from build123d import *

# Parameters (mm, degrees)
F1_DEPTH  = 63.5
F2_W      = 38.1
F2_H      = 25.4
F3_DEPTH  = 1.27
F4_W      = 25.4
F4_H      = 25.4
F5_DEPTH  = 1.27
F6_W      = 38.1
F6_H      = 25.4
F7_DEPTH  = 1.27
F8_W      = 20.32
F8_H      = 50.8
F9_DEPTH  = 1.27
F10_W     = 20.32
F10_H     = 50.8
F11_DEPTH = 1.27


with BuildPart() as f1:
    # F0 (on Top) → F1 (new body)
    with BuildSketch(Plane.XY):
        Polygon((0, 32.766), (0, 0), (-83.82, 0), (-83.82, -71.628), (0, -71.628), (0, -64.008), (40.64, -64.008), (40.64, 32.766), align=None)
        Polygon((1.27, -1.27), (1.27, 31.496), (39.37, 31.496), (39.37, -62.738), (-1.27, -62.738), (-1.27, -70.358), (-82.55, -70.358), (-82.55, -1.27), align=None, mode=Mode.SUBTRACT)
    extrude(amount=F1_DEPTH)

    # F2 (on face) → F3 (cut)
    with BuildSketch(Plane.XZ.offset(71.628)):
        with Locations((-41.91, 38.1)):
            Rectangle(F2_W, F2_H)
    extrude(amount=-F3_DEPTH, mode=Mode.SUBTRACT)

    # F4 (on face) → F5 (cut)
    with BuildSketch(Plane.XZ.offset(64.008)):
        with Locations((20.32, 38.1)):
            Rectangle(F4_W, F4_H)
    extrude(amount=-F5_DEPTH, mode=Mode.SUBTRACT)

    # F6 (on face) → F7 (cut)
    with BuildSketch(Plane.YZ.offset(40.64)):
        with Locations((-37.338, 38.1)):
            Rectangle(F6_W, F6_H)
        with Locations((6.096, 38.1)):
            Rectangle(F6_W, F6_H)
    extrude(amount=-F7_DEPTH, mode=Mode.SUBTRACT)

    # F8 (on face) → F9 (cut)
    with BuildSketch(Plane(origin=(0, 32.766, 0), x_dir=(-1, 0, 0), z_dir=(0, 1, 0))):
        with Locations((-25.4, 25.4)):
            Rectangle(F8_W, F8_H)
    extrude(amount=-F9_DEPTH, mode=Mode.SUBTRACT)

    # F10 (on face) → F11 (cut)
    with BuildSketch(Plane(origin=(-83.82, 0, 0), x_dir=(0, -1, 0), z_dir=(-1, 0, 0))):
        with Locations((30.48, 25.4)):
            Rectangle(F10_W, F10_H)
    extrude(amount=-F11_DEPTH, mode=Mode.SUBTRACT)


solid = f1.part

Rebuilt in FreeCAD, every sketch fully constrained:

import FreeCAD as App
import Part
import Sketcher

V = App.Vector
Q = App.Units.Quantity


def add_polygon(sketch, points):
    """Adds a closed chain of lines whose ends are joined by coincident constraints."""
    first, n = sketch.GeometryCount, len(points)
    for a, b in zip(points, points[1:] + points[:1]):
        sketch.addGeometry(Part.LineSegment(App.Vector(*a, 0), App.Vector(*b, 0)), False)
    for i in range(n):
        sketch.addConstraint(Sketcher.Constraint("Coincident", first + i, 2, first + (i + 1) % n, 1))

doc = App.newDocument("Part")
body = doc.addObject("PartDesign::Body", "Body")

sketch1 = body.newObject("Sketcher::SketchObject", "Sketch")
sketch1.AttachmentSupport = (doc.getObject("XY_Plane"), [""])
sketch1.MapMode = "FlatFace"
add_polygon(sketch1, [(0, 32.766), (0, 0), (-83.82, 0), (-83.82, -71.628), (0, -71.628), (0, -64.008), (40.64, -64.008), (40.64, 32.766)])
add_polygon(sketch1, [(-82.55, -1.27), (1.27, -1.27), (1.27, 31.496), (39.37, 31.496), (39.37, -62.738), (-1.27, -62.738), (-1.27, -70.358), (-82.55, -70.358)])
sketch1.addConstraint([
    Sketcher.Constraint("Vertical", 0),
    Sketcher.Constraint("Horizontal", 1),
    Sketcher.Constraint("Vertical", 2),
    Sketcher.Constraint("Horizontal", 3),
    Sketcher.Constraint("Vertical", 4),
    Sketcher.Constraint("Horizontal", 5),
    Sketcher.Constraint("Vertical", 6),
    Sketcher.Constraint("Horizontal", 7),
    Sketcher.Constraint("Horizontal", 8),
    Sketcher.Constraint("Vertical", 9),
    Sketcher.Constraint("Horizontal", 10),
    Sketcher.Constraint("Vertical", 11),
    Sketcher.Constraint("Horizontal", 12),
    Sketcher.Constraint("Vertical", 13),
    Sketcher.Constraint("Horizontal", 14),
    Sketcher.Constraint("Vertical", 15),
    Sketcher.Constraint("Coincident", 0, 2, -1, 1),
    Sketcher.Constraint("PointOnObject", 3, 2, -2),
    Sketcher.Constraint("Equal", 3, 8),
    Sketcher.Constraint("Equal", 7, 12),
    Sketcher.Constraint("Equal", 0, 9),
    Sketcher.Constraint("Equal", 4, 13),
    Sketcher.Constraint("DistanceX", 1, 2, 1, 1, Q("3.3 in")),
    Sketcher.Constraint("DistanceX", 5, 1, 5, 2, Q("1.6 in")),
    Sketcher.Constraint("DistanceX", 10, 1, 10, 2, Q("1.5 in")),
    Sketcher.Constraint("DistanceY", 4, 1, 4, 2, Q("0.3 in")),
    Sketcher.Constraint("DistanceY", 0, 2, 0, 1, Q("1.29 in")),
    Sketcher.Constraint("DistanceY", 2, 2, 2, 1, Q("2.82 in")),
    Sketcher.Constraint("DistanceY", 11, 2, 11, 1, Q("3.71 in")),
    Sketcher.Constraint("DistanceX", -1, 1, 8, 2, Q("0.05 in")),
    Sketcher.Constraint("DistanceY", 8, 2, -1, 1, Q("0.05 in")),
])
pad1 = body.newObject("PartDesign::Pad", "Pad")
pad1.Profile = sketch1
pad1.Length = Q("2.5 in")

sketch2 = body.newObject("Sketcher::SketchObject", "Sketch001")
sketch2.AttachmentSupport = (doc.getObject("XZ_Plane"), [""])
sketch2.MapMode = "FlatFace"
sketch2.AttachmentOffset = App.Placement(V(0, 0, 2.82 * 25.4), App.Rotation())
add_polygon(sketch2, [(-60.96, 50.8), (-60.96, 25.4), (-22.86, 25.4), (-22.86, 50.8)])
sketch2.addConstraint([
    Sketcher.Constraint("Vertical", 0),
    Sketcher.Constraint("Horizontal", 1),
    Sketcher.Constraint("Vertical", 2),
    Sketcher.Constraint("Horizontal", 3),
    Sketcher.Constraint("DistanceY", 0, 2, 0, 1, Q("1 in")),
    Sketcher.Constraint("DistanceX", 1, 1, 1, 2, Q("1.5 in")),
    Sketcher.Constraint("DistanceY", -1, 1, 0, 2, Q("1 in")),
    Sketcher.Constraint("DistanceX", 0, 2, -1, 1, Q("2.4 in")),
])
pocket1 = body.newObject("PartDesign::Pocket", "Pocket")
pocket1.Profile = sketch2
pocket1.Length = Q("0.05 in")

sketch3 = body.newObject("Sketcher::SketchObject", "Sketch002")
sketch3.AttachmentSupport = (doc.getObject("XZ_Plane"), [""])
sketch3.MapMode = "FlatFace"
sketch3.AttachmentOffset = App.Placement(V(0, 0, 2.52 * 25.4), App.Rotation())
add_polygon(sketch3, [(7.62, 50.8), (7.62, 25.4), (33.02, 25.4), (33.02, 50.8)])
sketch3.addConstraint([
    Sketcher.Constraint("Vertical", 0),
    Sketcher.Constraint("Horizontal", 1),
    Sketcher.Constraint("Vertical", 2),
    Sketcher.Constraint("Horizontal", 3),
    Sketcher.Constraint("Equal", 3, 0),
    Sketcher.Constraint("DistanceX", 1, 1, 1, 2, Q("1 in")),
    Sketcher.Constraint("DistanceY", -1, 1, 0, 2, Q("1 in")),
    Sketcher.Constraint("DistanceX", -1, 1, 0, 2, Q("0.3 in")),
])
pocket2 = body.newObject("PartDesign::Pocket", "Pocket001")
pocket2.Profile = sketch3
pocket2.Length = Q("0.05 in")

sketch4 = body.newObject("Sketcher::SketchObject", "Sketch003")
sketch4.AttachmentSupport = (doc.getObject("YZ_Plane"), [""])
sketch4.MapMode = "FlatFace"
sketch4.AttachmentOffset = App.Placement(V(0, 0, 1.6 * 25.4), App.Rotation())
add_polygon(sketch4, [(-56.388, 50.8), (-56.388, 25.4), (-18.288, 25.4), (-18.288, 50.8)])
add_polygon(sketch4, [(-12.954, 50.8), (-12.954, 25.4), (25.146, 25.4), (25.146, 50.8)])
sketch4.addConstraint([
    Sketcher.Constraint("Vertical", 0),
    Sketcher.Constraint("Horizontal", 1),
    Sketcher.Constraint("Vertical", 2),
    Sketcher.Constraint("Horizontal", 3),
    Sketcher.Constraint("Vertical", 4),
    Sketcher.Constraint("Horizontal", 5),
    Sketcher.Constraint("Vertical", 6),
    Sketcher.Constraint("Horizontal", 7),
    Sketcher.Constraint("Horizontal", 1, 2, 4, 2),
    Sketcher.Constraint("Horizontal", 3, 2, 6, 2),
    Sketcher.Constraint("Equal", 3, 5),
    Sketcher.Constraint("DistanceY", 0, 2, 0, 1, Q("1 in")),
    Sketcher.Constraint("DistanceX", 1, 1, 1, 2, Q("1.5 in")),
    Sketcher.Constraint("DistanceY", -1, 1, 0, 2, Q("1 in")),
    Sketcher.Constraint("DistanceX", 0, 2, -1, 1, Q("2.22 in")),
    Sketcher.Constraint("DistanceX", 4, 2, -1, 1, Q("0.51 in")),
])
pocket3 = body.newObject("PartDesign::Pocket", "Pocket002")
pocket3.Profile = sketch4
pocket3.Length = Q("0.05 in")

sketch5 = body.newObject("Sketcher::SketchObject", "Sketch004")
sketch5.AttachmentSupport = (doc.getObject("XZ_Plane"), [""])
sketch5.MapMode = "FlatFace"
sketch5.AttachmentOffset = App.Placement(V(0, 0, -1.29 * 25.4), App.Rotation())
add_polygon(sketch5, [(35.56, 50.8), (35.56, 0), (15.24, 0), (15.24, 50.8)])
sketch5.addConstraint([
    Sketcher.Constraint("Vertical", 0),
    Sketcher.Constraint("Horizontal", 1),
    Sketcher.Constraint("Vertical", 2),
    Sketcher.Constraint("Horizontal", 3),
    Sketcher.Constraint("PointOnObject", 0, 2, -1),
    Sketcher.Constraint("DistanceY", 0, 2, 0, 1, Q("2 in")),
    Sketcher.Constraint("DistanceX", 1, 2, 1, 1, Q("0.8 in")),
    Sketcher.Constraint("DistanceX", -1, 1, 0, 2, Q("1.4 in")),
])
pocket4 = body.newObject("PartDesign::Pocket", "Pocket003")
pocket4.Profile = sketch5
pocket4.Length = Q("0.05 in")
pocket4.Reversed = True

sketch6 = body.newObject("Sketcher::SketchObject", "Sketch005")
sketch6.AttachmentSupport = (doc.getObject("YZ_Plane"), [""])
sketch6.MapMode = "FlatFace"
sketch6.AttachmentOffset = App.Placement(V(0, 0, -3.3 * 25.4), App.Rotation())
add_polygon(sketch6, [(-20.32, 50.8), (-20.32, 0), (-40.64, 0), (-40.64, 50.8)])
sketch6.addConstraint([
    Sketcher.Constraint("Vertical", 0),
    Sketcher.Constraint("Horizontal", 1),
    Sketcher.Constraint("Vertical", 2),
    Sketcher.Constraint("Horizontal", 3),
    Sketcher.Constraint("PointOnObject", 0, 2, -1),
    Sketcher.Constraint("DistanceY", 0, 2, 0, 1, Q("2 in")),
    Sketcher.Constraint("DistanceX", 1, 2, 1, 1, Q("0.8 in")),
    Sketcher.Constraint("DistanceX", 0, 2, -1, 1, Q("0.8 in")),
])
pocket5 = body.newObject("PartDesign::Pocket", "Pocket004")
pocket5.Profile = sketch6
pocket5.Length = Q("0.05 in")
pocket5.Reversed = True

doc.recompute()
